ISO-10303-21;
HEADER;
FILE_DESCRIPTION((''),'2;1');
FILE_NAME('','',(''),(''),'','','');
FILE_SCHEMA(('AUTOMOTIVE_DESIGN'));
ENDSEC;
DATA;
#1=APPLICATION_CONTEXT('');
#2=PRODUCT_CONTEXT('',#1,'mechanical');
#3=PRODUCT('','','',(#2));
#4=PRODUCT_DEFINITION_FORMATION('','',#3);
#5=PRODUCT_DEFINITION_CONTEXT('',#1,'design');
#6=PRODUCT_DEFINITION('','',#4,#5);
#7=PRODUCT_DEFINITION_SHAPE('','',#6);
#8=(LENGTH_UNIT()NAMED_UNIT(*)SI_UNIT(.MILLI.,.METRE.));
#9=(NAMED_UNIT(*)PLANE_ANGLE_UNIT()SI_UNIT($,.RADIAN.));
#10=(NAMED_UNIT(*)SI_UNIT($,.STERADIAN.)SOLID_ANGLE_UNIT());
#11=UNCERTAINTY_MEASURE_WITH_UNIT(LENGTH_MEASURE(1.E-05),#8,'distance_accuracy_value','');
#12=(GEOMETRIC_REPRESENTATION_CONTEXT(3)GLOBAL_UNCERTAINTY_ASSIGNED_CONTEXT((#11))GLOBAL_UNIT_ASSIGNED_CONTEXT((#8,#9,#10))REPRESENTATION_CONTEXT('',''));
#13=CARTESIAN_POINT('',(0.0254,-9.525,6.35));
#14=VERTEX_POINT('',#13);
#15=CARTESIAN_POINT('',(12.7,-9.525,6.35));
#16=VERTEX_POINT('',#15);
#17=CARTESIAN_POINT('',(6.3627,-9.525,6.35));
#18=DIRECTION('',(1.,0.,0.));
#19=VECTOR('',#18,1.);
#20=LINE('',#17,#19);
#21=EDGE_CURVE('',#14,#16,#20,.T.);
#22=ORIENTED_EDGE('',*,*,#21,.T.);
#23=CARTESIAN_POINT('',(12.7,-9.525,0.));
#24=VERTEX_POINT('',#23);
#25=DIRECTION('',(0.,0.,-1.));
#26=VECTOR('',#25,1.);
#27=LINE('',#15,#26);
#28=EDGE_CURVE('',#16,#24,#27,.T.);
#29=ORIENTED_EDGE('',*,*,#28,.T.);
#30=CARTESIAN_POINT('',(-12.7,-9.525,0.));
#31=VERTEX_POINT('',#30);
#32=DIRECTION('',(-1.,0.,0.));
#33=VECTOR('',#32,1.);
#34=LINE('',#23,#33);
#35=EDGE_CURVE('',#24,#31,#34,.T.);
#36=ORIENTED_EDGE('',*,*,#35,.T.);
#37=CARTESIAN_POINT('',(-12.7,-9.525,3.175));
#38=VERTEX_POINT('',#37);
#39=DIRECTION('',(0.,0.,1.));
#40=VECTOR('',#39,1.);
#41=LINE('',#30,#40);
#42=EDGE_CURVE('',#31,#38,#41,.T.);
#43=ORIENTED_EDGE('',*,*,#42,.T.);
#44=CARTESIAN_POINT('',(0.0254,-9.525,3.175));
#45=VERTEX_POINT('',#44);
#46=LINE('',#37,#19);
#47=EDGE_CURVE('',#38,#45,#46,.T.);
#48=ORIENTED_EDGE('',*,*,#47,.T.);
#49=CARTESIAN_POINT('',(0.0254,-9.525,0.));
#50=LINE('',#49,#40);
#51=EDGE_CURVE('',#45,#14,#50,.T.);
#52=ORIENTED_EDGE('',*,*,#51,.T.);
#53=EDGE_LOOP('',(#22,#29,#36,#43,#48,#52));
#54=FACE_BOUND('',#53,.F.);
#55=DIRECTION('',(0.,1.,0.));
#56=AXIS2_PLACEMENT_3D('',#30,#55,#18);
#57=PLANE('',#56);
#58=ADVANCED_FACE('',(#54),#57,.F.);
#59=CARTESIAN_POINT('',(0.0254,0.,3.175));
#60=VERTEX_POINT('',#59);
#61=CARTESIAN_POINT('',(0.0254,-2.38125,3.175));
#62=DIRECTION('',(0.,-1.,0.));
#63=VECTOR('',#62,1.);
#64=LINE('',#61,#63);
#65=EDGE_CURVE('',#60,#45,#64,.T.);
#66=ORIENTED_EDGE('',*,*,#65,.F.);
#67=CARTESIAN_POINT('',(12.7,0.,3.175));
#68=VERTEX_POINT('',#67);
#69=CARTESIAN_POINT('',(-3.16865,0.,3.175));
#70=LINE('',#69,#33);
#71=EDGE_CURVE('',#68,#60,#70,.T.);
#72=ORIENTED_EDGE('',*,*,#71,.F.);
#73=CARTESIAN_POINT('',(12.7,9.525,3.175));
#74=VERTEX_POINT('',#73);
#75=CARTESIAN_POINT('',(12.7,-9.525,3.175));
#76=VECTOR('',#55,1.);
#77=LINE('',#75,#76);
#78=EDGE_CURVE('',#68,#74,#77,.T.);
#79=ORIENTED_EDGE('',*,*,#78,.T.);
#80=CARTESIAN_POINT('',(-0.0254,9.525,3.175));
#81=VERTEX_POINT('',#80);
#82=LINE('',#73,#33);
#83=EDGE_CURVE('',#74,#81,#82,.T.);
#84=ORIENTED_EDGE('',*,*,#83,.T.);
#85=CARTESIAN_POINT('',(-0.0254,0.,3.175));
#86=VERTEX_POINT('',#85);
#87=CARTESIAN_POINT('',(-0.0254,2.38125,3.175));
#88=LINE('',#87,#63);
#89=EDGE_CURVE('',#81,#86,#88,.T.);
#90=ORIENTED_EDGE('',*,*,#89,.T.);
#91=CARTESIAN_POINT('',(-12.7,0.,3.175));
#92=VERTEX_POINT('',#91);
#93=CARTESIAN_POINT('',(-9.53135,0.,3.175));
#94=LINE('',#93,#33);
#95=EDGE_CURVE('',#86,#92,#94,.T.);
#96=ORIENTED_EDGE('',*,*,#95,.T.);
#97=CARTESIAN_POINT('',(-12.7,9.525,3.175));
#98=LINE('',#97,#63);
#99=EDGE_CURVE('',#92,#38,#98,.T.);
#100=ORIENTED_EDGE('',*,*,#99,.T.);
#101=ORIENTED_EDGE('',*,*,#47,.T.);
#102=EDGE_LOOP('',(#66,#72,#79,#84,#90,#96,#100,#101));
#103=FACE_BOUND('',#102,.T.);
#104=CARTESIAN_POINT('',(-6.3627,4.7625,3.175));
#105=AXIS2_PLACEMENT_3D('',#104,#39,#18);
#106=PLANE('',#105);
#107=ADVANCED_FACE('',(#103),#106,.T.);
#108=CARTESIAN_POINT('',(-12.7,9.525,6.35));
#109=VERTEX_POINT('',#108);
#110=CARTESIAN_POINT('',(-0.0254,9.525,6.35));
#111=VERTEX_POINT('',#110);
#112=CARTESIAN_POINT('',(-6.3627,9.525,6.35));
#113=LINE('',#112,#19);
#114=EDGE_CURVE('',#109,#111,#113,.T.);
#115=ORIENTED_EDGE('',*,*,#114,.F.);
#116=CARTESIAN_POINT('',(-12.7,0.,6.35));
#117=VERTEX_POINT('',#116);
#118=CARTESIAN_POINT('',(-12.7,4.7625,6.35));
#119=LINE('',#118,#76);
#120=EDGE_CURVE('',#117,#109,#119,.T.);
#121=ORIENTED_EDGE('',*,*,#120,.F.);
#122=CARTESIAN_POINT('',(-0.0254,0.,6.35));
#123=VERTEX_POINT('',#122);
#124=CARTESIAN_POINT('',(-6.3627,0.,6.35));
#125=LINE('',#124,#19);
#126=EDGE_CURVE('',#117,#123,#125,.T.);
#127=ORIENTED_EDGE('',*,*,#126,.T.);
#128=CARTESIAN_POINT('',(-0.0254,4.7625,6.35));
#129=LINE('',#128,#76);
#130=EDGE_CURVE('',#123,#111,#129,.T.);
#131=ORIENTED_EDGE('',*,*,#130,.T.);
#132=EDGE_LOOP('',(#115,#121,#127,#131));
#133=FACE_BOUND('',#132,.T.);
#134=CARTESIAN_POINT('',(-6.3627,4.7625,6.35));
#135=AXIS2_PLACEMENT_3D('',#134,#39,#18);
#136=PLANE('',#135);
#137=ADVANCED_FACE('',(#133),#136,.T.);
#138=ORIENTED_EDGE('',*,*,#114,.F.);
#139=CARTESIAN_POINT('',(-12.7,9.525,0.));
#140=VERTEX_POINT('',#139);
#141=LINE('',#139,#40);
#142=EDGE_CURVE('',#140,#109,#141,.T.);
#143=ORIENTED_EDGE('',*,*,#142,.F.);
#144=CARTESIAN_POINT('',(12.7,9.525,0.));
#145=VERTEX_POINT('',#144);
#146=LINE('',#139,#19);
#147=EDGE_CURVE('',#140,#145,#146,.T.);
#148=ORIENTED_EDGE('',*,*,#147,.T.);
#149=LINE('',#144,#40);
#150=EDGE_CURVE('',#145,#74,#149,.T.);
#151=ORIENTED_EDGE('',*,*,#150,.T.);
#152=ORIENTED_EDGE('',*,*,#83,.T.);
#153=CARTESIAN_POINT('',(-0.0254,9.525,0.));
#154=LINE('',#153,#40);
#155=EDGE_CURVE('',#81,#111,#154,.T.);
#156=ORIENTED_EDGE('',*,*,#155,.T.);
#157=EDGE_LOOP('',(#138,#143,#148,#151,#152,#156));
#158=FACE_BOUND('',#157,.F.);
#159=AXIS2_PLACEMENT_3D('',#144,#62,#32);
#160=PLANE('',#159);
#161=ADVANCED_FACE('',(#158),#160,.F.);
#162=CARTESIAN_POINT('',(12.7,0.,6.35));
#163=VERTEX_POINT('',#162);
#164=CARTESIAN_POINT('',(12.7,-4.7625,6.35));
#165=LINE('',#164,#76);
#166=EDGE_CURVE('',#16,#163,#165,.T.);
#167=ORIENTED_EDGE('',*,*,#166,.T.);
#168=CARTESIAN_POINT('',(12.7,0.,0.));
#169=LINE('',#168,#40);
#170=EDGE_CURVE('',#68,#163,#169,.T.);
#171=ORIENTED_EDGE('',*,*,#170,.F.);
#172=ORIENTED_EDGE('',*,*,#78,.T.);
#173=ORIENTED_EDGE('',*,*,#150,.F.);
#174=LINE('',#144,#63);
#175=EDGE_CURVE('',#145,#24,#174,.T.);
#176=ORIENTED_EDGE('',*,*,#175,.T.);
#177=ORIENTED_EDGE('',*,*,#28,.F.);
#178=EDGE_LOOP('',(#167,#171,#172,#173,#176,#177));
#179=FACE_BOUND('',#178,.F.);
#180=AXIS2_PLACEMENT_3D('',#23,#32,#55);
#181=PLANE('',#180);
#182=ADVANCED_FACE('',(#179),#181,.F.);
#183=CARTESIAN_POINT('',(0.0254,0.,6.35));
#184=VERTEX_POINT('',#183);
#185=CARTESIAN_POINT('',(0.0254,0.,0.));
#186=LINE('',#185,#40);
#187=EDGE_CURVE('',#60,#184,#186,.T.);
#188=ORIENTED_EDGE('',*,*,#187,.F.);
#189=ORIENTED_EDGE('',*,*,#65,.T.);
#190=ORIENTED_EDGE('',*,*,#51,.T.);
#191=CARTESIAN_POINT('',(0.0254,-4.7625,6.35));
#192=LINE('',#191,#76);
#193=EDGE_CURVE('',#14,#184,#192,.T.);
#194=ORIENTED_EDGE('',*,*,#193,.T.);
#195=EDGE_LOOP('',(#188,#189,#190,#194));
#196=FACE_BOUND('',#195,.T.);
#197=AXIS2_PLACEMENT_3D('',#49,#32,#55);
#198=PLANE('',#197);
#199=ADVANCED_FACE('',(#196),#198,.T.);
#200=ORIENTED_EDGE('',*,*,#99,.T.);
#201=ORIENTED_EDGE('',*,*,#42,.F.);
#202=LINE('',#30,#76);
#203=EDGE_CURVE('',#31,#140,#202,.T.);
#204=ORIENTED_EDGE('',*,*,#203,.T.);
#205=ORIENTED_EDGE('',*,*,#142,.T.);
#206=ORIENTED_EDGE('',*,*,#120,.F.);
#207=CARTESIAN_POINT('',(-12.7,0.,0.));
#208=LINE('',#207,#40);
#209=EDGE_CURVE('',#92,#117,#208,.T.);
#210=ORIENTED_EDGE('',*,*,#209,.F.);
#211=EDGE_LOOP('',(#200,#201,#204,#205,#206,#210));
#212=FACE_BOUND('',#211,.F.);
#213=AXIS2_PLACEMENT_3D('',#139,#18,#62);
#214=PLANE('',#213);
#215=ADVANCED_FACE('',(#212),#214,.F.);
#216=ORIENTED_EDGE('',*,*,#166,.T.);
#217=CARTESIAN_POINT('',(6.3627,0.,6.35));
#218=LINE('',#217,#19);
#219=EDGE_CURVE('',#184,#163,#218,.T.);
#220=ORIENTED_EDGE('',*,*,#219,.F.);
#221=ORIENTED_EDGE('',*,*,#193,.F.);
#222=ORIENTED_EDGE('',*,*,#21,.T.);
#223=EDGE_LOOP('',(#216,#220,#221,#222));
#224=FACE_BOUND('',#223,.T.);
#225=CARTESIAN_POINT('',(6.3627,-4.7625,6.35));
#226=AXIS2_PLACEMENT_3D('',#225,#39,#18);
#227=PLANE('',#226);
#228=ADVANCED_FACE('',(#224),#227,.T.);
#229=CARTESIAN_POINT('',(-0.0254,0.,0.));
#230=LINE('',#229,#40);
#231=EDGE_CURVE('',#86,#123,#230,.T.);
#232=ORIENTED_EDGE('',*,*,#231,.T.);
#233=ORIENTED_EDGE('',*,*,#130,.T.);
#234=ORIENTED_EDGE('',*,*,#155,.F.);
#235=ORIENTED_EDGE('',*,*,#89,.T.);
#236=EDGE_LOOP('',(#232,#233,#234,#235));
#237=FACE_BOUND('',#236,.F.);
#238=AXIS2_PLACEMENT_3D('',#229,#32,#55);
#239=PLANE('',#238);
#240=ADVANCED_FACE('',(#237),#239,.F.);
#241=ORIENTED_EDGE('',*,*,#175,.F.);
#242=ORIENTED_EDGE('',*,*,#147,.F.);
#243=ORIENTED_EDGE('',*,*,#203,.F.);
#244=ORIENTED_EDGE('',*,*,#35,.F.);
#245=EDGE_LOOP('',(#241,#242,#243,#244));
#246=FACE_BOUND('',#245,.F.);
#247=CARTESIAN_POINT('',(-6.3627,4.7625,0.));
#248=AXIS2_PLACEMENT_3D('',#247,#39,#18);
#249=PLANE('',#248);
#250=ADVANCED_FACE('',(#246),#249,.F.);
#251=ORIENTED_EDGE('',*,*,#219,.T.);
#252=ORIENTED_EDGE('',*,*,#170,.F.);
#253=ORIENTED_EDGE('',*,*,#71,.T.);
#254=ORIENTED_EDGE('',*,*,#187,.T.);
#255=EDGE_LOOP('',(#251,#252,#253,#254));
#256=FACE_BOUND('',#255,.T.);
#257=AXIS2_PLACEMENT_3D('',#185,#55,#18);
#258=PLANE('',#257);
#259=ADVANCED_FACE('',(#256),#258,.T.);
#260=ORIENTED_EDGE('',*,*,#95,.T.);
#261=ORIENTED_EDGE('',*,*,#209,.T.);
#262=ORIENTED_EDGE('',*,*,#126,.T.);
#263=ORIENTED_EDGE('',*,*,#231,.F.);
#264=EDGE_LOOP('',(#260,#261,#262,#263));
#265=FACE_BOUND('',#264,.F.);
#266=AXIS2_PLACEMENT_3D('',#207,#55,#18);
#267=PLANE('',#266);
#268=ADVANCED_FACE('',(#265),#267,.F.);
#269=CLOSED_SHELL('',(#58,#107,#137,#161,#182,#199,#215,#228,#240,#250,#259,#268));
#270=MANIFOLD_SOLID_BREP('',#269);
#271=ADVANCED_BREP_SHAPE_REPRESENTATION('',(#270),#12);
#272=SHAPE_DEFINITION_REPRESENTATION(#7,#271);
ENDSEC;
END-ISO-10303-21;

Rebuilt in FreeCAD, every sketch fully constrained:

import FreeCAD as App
import Part
import Sketcher
Q = App.Units.Quantity


def add_polygon(sketch, points):
    """Adds a closed chain of lines whose ends are joined by coincident constraints."""
    first, n = sketch.GeometryCount, len(points)
    for a, b in zip(points, points[1:] + points[:1]):
        sketch.addGeometry(Part.LineSegment(App.Vector(*a, 0), App.Vector(*b, 0)), False)
    for i in range(n):
        sketch.addConstraint(Sketcher.Constraint("Coincident", first + i, 2, first + (i + 1) % n, 1))

doc = App.newDocument("Part")
body = doc.addObject("PartDesign::Body", "Body")

# Sketch on XY plane
sketch1 = doc.addObject("Sketcher::SketchObject", "Sketch")
body.addObject(sketch1)
sketch1.AttachmentSupport = (doc.XY_Plane, [""])
sketch1.MapMode = "FlatFace"
add_polygon(sketch1, [(-13, 10), (-13, -10), (13, -10), (13, 10)])  # lines 0-3
sketch1.addConstraint([
    Sketcher.Constraint("Vertical", 0),
    Sketcher.Constraint("Horizontal", 1),
    Sketcher.Constraint("Vertical", 2),
    Sketcher.Constraint("Horizontal", 3),
    Sketcher.Constraint("Symmetric", 0, 2, 2, 2, -1, 1),
    Sketcher.Constraint("DistanceX", 1, 1, 1, 2, Q("1 in")),
    Sketcher.Constraint("DistanceY", 0, 2, 0, 1, Q("0.75 in")),
])
pad1 = doc.addObject("PartDesign::Pad", "Pad")
body.addObject(pad1)
pad1.Profile = sketch1
pad1.Length = Q("0.125 in")

# Sketch on XY plane
sketch2 = doc.addObject("Sketcher::SketchObject", "Sketch001")
body.addObject(sketch2)
sketch2.AttachmentSupport = (doc.XY_Plane, [""])
sketch2.MapMode = "FlatFace"
add_polygon(sketch2, [(0, 0), (0, -10), (13, -10), (13, 0)])  # lines 0-3
add_polygon(sketch2, [(-13, 10), (-13, 0), (0, 0), (0, 10)])  # lines 4-7
sketch2.addConstraint([
    Sketcher.Constraint("Vertical", 0),
    Sketcher.Constraint("Horizontal", 1),
    Sketcher.Constraint("Vertical", 2),
    Sketcher.Constraint("Horizontal", 3),
    Sketcher.Constraint("Vertical", 4),
    Sketcher.Constraint("Horizontal", 5),
    Sketcher.Constraint("Vertical", 6),
    Sketcher.Constraint("Horizontal", 7),
    Sketcher.Constraint("Symmetric", 2, 2, 4, 2, -1, 1),
    Sketcher.Constraint("Symmetric", 0, 2, 6, 2, -1, 1),
    Sketcher.Constraint("PointOnObject", 2, 2, -1),
    Sketcher.Constraint("DistanceX", 4, 2, 2, 2, Q("1 in")),
    Sketcher.Constraint("DistanceX", 1, 1, 1, 2, Q("0.499 in")),
    Sketcher.Constraint("DistanceY", 0, 2, 0, 1, Q("0.375 in")),
])
pad2 = doc.addObject("PartDesign::Pad", "Pad001")
body.addObject(pad2)
pad2.Profile = sketch2
pad2.Length = Q("0.25 in")

doc.recompute()
